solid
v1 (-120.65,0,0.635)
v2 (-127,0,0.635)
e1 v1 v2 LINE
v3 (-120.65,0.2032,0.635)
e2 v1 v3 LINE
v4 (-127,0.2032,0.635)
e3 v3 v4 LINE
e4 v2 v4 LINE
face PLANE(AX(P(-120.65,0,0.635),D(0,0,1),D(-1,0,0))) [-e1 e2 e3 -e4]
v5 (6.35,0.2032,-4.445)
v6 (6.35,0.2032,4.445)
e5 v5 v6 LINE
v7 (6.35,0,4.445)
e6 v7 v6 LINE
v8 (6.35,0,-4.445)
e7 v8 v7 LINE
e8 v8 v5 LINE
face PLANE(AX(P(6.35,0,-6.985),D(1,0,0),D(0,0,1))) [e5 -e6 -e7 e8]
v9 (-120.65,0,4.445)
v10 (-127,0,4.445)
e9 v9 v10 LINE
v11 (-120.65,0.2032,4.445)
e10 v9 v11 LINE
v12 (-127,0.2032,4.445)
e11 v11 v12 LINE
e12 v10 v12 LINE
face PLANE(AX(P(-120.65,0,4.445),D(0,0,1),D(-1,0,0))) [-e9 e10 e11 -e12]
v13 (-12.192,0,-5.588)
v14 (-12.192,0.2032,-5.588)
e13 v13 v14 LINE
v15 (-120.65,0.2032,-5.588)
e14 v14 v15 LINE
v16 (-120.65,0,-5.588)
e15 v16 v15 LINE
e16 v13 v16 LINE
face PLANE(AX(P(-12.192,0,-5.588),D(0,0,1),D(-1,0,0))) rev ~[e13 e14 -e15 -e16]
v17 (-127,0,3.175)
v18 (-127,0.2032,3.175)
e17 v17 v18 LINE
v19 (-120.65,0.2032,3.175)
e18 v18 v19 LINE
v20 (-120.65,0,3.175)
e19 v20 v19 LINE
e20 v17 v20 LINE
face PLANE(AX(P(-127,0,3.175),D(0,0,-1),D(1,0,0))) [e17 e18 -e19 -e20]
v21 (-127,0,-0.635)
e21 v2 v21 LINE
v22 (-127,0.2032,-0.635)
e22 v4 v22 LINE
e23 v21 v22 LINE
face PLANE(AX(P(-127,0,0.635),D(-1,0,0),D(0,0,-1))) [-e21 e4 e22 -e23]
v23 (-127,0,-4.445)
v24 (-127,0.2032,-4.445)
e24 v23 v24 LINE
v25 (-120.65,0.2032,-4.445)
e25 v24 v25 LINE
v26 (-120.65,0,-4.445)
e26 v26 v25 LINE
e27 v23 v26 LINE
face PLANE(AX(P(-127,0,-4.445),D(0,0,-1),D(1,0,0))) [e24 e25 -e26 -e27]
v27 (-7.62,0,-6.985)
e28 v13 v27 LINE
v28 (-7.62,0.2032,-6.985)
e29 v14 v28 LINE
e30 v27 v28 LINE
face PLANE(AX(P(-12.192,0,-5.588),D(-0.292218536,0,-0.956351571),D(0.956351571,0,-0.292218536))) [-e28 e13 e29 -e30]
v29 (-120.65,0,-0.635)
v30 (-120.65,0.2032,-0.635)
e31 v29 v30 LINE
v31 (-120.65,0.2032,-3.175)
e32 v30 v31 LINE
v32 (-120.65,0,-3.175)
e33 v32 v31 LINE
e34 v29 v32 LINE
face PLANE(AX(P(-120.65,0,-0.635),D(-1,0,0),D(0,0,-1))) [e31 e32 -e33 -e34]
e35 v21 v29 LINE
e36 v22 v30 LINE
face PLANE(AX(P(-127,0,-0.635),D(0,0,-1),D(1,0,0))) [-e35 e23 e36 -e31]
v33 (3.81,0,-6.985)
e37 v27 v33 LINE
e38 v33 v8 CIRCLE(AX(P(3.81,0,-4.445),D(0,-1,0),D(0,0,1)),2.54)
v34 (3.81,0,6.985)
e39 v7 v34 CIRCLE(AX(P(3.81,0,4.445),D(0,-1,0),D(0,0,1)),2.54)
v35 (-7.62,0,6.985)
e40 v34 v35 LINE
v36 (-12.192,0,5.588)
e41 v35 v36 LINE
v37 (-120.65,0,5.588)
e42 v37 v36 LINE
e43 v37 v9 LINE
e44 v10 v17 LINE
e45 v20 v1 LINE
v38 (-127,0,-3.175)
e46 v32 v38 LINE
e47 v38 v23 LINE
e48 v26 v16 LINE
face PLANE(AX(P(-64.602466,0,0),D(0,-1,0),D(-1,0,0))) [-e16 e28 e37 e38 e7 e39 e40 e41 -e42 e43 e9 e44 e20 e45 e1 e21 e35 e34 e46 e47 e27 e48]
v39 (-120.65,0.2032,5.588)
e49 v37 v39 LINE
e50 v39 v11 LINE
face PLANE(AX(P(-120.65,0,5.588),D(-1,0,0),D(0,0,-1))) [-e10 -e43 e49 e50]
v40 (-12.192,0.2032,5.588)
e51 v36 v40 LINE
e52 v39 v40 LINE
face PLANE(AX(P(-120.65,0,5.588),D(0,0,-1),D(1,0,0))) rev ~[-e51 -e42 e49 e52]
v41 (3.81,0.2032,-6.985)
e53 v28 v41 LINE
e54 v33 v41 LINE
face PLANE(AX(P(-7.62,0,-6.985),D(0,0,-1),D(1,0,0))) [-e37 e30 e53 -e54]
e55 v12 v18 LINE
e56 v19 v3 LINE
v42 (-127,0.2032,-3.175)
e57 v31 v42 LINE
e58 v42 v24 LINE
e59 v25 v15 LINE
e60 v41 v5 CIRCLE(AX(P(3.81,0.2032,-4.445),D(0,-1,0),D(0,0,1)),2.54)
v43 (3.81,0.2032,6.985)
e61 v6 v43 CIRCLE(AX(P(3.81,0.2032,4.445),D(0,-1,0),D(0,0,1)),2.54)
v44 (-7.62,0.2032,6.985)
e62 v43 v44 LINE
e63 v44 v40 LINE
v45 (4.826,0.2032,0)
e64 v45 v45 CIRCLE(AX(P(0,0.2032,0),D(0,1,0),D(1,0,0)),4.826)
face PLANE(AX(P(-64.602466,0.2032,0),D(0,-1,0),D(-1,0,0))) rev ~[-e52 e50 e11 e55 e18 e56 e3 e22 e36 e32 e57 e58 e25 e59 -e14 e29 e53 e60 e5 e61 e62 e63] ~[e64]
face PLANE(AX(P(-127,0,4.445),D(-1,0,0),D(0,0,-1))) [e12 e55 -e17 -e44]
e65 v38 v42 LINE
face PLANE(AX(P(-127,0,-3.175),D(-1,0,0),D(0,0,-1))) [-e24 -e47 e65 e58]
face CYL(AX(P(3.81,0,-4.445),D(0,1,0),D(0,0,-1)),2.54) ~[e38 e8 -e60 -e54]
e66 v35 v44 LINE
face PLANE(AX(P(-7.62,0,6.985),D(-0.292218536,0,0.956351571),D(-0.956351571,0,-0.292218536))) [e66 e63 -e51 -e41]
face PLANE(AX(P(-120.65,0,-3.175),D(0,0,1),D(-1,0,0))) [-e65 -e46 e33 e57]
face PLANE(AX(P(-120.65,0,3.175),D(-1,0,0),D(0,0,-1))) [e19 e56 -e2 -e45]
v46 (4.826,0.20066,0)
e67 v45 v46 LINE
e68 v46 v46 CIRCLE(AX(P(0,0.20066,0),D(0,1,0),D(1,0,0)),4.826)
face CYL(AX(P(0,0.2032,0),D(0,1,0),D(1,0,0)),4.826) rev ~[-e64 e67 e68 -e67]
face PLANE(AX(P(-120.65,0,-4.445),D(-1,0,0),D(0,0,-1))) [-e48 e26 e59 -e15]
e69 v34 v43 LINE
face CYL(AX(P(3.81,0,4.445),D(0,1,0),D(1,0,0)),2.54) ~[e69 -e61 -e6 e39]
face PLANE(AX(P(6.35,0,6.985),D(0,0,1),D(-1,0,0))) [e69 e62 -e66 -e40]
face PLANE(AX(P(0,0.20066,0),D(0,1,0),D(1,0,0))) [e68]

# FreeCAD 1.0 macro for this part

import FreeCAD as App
import Part
import Sketcher
from FreeCAD import Vector
Q = App.Units.Quantity


def edges_at(feature, points):
    """Names of the edges that pass closest to the given points."""
    edges = feature.Shape.Edges
    near = lambda p: min(range(len(edges)), key=lambda i: edges[i].distToShape(Part.Vertex(*p))[0])
    return sorted({f"Edge{near(p) + 1}" for p in points})


def add_polygon(sketch, points):
    """Adds a closed chain of lines whose ends are joined by coincident constraints."""
    first, n = sketch.GeometryCount, len(points)
    for a, b in zip(points, points[1:] + points[:1]):
        sketch.addGeometry(Part.LineSegment(App.Vector(*a, 0), App.Vector(*b, 0)), False)
    for i in range(n):
        sketch.addConstraint(Sketcher.Constraint("Coincident", first + i, 2, first + (i + 1) % n, 1))

doc = App.newDocument("Part")
body = doc.addObject("PartDesign::Body", "Body")

# Sketch on XZ plane
sketch1 = body.newObject("Sketcher::SketchObject", "Sketch")
sketch1.AttachmentSupport = (doc.getObject("XZ_Plane"), [""])
sketch1.MapMode = "FlatFace"
add_polygon(sketch1, [(-127, 0.6), (-120.7, 0.6), (-120.7, 3.2), (-127, 3.2), (-127, 4.4), (-120.7, 4.4), (-120.7, 5.6), (-12.2, 5.6), (-7.6, 7), (6.3, 7), (6.3, -7), (-7.6, -7), (-12.2, -5.6), (-120.7, -5.6), (-120.7, -4.4), (-127, -4.4), (-127, -3.2), (-120.7, -3.2), (-120.7, -0.6), (-127, -0.6)])  # lines 0-19
sketch1.addConstraint(Sketcher.Constraint("Horizontal", 0))
sketch1.addConstraint(Sketcher.Constraint("Vertical", 1))
sketch1.addConstraint(Sketcher.Constraint("Horizontal", 2))
sketch1.addConstraint(Sketcher.Constraint("Vertical", 3))
sketch1.addConstraint(Sketcher.Constraint("Horizontal", 4))
sketch1.addConstraint(Sketcher.Constraint("Vertical", 5))
sketch1.addConstraint(Sketcher.Constraint("Horizontal", 6))
sketch1.addConstraint(Sketcher.Constraint("Horizontal", 8))
sketch1.addConstraint(Sketcher.Constraint("Vertical", 9))
sketch1.addConstraint(Sketcher.Constraint("Horizontal", 10))
sketch1.addConstraint(Sketcher.Constraint("Horizontal", 12))
sketch1.addConstraint(Sketcher.Constraint("Vertical", 13))
sketch1.addConstraint(Sketcher.Constraint("Horizontal", 14))
sketch1.addConstraint(Sketcher.Constraint("Vertical", 15))
sketch1.addConstraint(Sketcher.Constraint("Horizontal", 16))
sketch1.addConstraint(Sketcher.Constraint("Vertical", 17))
sketch1.addConstraint(Sketcher.Constraint("Horizontal", 18))
sketch1.addConstraint(Sketcher.Constraint("Vertical", 19))
sketch1.addConstraint(Sketcher.Constraint("Symmetric", 7, 2, 10, 2, -1))
sketch1.addConstraint(Sketcher.Constraint("Symmetric", 6, 2, 11, 2, -1))
sketch1.addConstraint(Sketcher.Constraint("Symmetric", 4, 2, 13, 2, -1))
sketch1.addConstraint(Sketcher.Constraint("Symmetric", 2, 2, 15, 2, -1))
sketch1.addConstraint(Sketcher.Constraint("Symmetric", 0, 2, 17, 2, -1))
sketch1.addConstraint(Sketcher.Constraint("Vertical", 1, 2, 4, 2))
sketch1.addConstraint(Sketcher.Constraint("Vertical", 15, 2, 18, 2))
sketch1.addConstraint(Sketcher.Constraint("Equal", 10, 9))
sketch1.addConstraint(Sketcher.Constraint("Equal", 15, 19))
sketch1.addConstraint(Sketcher.Constraint("DistanceY", 1, 1, 1, 2, Q("0.1 in")))
sketch1.addConstraint(Sketcher.Constraint("DistanceX", 2, 2, -1, 1, Q("5 in")))
sketch1.addConstraint(Sketcher.Constraint("DistanceX", 5, 2, 8, 2, Q("5 in")))
sketch1.addConstraint(Sketcher.Constraint("DistanceX", 0, 1, 0, 2, Q("0.25 in")))
sketch1.addConstraint(Sketcher.Constraint("DistanceX", 6, 1, 6, 2, Q("4.27 in")))
sketch1.addConstraint(Sketcher.Constraint("DistanceX", 8, 1, 8, 2, Q("0.55 in")))
sketch1.addConstraint(Sketcher.Constraint("DistanceY", 3, 1, 3, 2, Q("0.05 in")))
sketch1.addConstraint(Sketcher.Constraint("DistanceY", 5, 1, 5, 2, Q("0.045 in")))
pad1 = body.newObject("PartDesign::Pad", "Pad")
pad1.Profile = sketch1
pad1.Length = Q("0.008 in")
pad1.Reversed = True

# Sketch on XZ plane
sketch2 = body.newObject("Sketcher::SketchObject", "Sketch001")
sketch2.AttachmentSupport = (doc.getObject("XZ_Plane"), [""])
sketch2.MapMode = "FlatFace"
sketch2.AttachmentOffset = App.Placement(Vector(0, 0, -0.008 * 25.4), App.Rotation())
sketch2.addGeometry(Part.Circle(Vector(0, 0, 0), Vector(0, 0, 1), 4.8), False)
sketch2.addConstraint(Sketcher.Constraint("Coincident", 0, 3, -1, 1))
sketch2.addConstraint(Sketcher.Constraint("Diameter", 0, Q("0.38 in")))
pocket1 = body.newObject("PartDesign::Pocket", "Pocket")
pocket1.Profile = sketch2
pocket1.Length = Q("0.0001 in")
pocket1.Reversed = True
doc.recompute()

fillet = body.newObject("PartDesign::Fillet", "Fillet")
fillet.Base = (pocket1, edges_at(pocket1, [(6.35, 0.102, -6.985), (6.35, 0.102, 6.985)]))
fillet.Radius = Q("0.1 in")

doc.recompute()
